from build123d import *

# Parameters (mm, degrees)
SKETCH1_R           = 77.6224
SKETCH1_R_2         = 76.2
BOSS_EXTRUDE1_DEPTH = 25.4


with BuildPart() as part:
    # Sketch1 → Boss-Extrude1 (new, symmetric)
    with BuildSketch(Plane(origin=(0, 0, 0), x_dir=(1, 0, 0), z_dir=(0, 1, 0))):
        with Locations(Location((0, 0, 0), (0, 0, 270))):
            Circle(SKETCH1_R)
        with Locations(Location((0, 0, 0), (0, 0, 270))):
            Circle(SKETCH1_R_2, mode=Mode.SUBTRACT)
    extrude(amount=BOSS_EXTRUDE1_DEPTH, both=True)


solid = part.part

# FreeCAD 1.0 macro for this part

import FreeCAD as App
import Part
import Sketcher
Q = App.Units.Quantity

doc = App.newDocument("Part")
body = doc.addObject("PartDesign::Body", "Body")

sketch1 = body.newObject("Sketcher::SketchObject", "Sketch")
sketch1.AttachmentSupport = (doc.getObject("XZ_Plane"), [""])
sketch1.MapMode = "FlatFace"
sketch1.addGeometry([
    Part.Circle(App.Vector(0, 0, 0), App.Vector(0, 0, 1), 78),
    Part.Circle(App.Vector(0, 0, 0), App.Vector(0, 0, 1), 76),
], False)
sketch1.addConstraint([
    Sketcher.Constraint("Coincident", 0, 3, -1, 1),
    Sketcher.Constraint("Coincident", 1, 3, -1, 1),
    Sketcher.Constraint("Diameter", 1, Q("6 in")),
    Sketcher.Constraint("Diameter", 0, Q("6.112 in")),
])
pad1 = body.newObject("PartDesign::Pad", "Pad")
pad1.Profile = sketch1
pad1.Length = Q("2 in")
pad1.Midplane = True

doc.recompute()
